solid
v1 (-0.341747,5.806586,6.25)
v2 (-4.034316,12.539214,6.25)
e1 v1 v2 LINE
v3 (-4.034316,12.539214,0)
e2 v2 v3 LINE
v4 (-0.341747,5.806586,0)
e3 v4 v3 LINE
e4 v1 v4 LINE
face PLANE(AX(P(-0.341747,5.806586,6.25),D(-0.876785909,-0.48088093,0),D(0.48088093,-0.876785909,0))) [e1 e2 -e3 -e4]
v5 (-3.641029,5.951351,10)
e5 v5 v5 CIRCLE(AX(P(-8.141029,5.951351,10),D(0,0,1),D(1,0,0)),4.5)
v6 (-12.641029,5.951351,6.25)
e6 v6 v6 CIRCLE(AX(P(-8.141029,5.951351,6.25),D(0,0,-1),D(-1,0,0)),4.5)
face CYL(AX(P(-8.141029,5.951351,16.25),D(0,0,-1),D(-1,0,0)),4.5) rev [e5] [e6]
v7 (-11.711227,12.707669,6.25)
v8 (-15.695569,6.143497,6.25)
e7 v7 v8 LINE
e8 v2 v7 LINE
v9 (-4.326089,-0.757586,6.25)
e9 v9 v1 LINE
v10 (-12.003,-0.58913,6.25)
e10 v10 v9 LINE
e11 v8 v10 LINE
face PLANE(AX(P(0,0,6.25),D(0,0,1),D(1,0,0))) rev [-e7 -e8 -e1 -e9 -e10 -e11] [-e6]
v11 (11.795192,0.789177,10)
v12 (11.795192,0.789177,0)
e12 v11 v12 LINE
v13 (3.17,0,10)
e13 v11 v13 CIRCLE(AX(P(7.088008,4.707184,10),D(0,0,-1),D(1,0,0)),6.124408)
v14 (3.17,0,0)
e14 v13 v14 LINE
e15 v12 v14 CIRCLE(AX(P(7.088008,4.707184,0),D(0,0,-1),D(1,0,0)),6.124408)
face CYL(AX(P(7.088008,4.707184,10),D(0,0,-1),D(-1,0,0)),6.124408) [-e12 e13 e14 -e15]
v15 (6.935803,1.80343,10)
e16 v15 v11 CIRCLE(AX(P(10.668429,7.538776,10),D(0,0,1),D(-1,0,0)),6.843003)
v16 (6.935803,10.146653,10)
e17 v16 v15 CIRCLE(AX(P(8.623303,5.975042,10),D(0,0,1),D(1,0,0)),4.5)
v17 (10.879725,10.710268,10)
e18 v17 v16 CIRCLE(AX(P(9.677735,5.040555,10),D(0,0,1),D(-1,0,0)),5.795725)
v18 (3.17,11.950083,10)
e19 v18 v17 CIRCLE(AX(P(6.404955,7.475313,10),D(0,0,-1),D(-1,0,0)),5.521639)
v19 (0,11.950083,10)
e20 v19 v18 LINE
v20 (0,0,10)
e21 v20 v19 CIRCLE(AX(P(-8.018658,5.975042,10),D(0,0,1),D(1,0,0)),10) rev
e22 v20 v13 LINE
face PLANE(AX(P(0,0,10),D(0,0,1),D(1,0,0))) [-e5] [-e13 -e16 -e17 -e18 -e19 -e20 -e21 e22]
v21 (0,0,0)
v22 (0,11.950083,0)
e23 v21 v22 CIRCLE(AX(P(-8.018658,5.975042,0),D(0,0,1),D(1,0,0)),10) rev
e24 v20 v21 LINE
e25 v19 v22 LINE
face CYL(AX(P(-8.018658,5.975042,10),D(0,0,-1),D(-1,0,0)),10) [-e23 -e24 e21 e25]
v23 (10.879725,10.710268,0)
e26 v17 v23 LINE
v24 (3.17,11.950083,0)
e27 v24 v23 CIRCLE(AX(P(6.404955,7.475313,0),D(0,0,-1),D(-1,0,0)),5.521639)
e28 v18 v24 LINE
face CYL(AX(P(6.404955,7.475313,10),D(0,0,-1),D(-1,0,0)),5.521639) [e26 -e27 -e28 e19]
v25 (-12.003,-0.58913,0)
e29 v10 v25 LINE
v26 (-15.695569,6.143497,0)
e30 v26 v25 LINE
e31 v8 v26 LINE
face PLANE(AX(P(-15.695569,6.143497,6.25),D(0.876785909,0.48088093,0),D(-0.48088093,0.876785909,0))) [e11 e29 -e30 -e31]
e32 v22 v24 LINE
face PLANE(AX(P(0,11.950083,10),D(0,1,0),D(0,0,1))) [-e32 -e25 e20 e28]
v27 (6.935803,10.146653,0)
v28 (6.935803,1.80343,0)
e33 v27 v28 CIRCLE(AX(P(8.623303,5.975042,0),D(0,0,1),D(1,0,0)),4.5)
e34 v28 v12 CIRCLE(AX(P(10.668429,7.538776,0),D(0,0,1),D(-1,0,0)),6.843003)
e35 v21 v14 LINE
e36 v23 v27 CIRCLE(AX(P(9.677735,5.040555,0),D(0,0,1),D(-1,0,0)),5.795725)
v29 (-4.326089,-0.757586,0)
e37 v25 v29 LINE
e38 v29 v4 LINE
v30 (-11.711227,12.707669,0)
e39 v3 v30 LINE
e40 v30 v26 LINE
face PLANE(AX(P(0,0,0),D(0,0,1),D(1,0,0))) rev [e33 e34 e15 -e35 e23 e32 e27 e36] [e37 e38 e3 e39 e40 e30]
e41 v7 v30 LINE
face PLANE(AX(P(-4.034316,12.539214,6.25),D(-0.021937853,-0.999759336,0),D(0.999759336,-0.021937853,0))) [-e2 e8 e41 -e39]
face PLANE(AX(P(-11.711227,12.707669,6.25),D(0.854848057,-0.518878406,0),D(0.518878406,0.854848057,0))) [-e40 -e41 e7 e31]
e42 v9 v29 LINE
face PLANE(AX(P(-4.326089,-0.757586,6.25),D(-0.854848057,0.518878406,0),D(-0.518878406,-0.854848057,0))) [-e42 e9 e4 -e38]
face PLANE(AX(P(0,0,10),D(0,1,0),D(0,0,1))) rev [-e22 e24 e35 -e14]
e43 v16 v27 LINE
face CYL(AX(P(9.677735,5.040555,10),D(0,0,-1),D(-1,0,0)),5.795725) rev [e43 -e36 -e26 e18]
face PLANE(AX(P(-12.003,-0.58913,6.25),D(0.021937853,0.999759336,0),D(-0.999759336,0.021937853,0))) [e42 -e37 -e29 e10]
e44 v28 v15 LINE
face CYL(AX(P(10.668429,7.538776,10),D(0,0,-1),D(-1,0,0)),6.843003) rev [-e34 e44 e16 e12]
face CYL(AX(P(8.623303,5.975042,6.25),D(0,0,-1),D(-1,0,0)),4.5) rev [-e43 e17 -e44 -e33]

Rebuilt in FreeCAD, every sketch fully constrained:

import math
import FreeCAD as App
import Part
import Sketcher

V = App.Vector

doc = App.newDocument("Part")
params = doc.addObject("Spreadsheet::Sheet", "Params")
for row, (alias, value) in enumerate([
    ("sketch1_radius", "6 mm"),
    ("sketch1_radius2", "10 mm"),
    ("sketch1_width", "3.17 mm"),
    ("pad1_length", "10 mm"),
    ("sketch2_diameter", "9 mm"),
    ("pocket1_length", "6.25 mm"),
    ("sketch3_diameter", "9 mm"),
    ("pocket2_length", "10 mm"),
    ("sketch4_radius", "6 mm"),
    ("sketch4_radius2", "4.5 mm"),
    ("pocket3_length", "10 mm"),
    ("sketch5_radius", "6 mm"),
    ("pad2_length", "10 mm"),
    ("sketch6_radius", "6 mm"),
    ("pad3_length", "10 mm"),
], start=1):
    params.set(f"A{row}", alias)
    params.set(f"B{row}", "=" + value)
    params.setAlias(f"B{row}", alias)

body = doc.addObject("PartDesign::Body", "Body")

# Sketch on XY plane
sketch1 = body.newObject("Sketcher::SketchObject", "Sketch")
sketch1.AttachmentSupport = (doc.getObject("XY_Plane"), [""])
sketch1.MapMode = "FlatFace"
sketch1.addGeometry(Part.LineSegment(V(0, 0, 0), V(3.2, 0, 0)), False)
sketch1.addGeometry(Part.ArcOfCircle(Part.Circle(V(2.6, 6, 0), V(0, 0, 1), 6), math.radians(-85), math.radians(85)), False)
sketch1.addGeometry(Part.LineSegment(V(3.2, 12, 0), V(0, 12, 0)), False)
sketch1.addGeometry(Part.ArcOfCircle(Part.Circle(V(-8, 6, 0), V(0, 0, 1), 10), math.radians(37), math.radians(323)), False)
sketch1.addConstraint(Sketcher.Constraint("Coincident", 0, 2, 1, 1))
sketch1.addConstraint(Sketcher.Constraint("Coincident", 1, 2, 2, 1))
sketch1.addConstraint(Sketcher.Constraint("Coincident", 2, 2, 3, 1))
sketch1.addConstraint(Sketcher.Constraint("Coincident", 3, 2, 0, 1))
sketch1.addConstraint(Sketcher.Constraint("Horizontal", 0))
sketch1.addConstraint(Sketcher.Constraint("Horizontal", 2))
sketch1.addConstraint(Sketcher.Constraint("Coincident", 3, 2, -1, 1))
sketch1.addConstraint(Sketcher.Constraint("PointOnObject", 2, 2, -2))
sketch1.addConstraint(Sketcher.Constraint("Horizontal", 1, 3, 3, 3))
sketch1.addConstraint(Sketcher.Constraint("Radius", 1, 6.0))
sketch1.addConstraint(Sketcher.Constraint("Radius", 3, 10.0))
sketch1.addConstraint(Sketcher.Constraint("DistanceX", 0, 1, 0, 2, 3.17))
sketch1.addConstraint(Sketcher.Constraint("DistanceY", -1, 1, 1, 3, 5.975042))
sketch1.setExpression("Constraints[9]", "Params.sketch1_radius")
sketch1.setExpression("Constraints[10]", "Params.sketch1_radius2")
sketch1.setExpression("Constraints[11]", "Params.sketch1_width")
pad1 = body.newObject("PartDesign::Pad", "Pad")
pad1.Profile = sketch1
pad1.setExpression("Length", "Params.pad1_length")

# Sketch on XY plane
sketch2 = body.newObject("Sketcher::SketchObject", "Sketch001")
sketch2.AttachmentSupport = (doc.getObject("XY_Plane"), [""])
sketch2.MapMode = "FlatFace"
sketch2.addGeometry(Part.Circle(V(8.6, 6, 0), V(0, 0, 1), 4.5), False)
sketch2.addGeometry(Part.LineSegment(V(-4.3, -0.8, 0), V(-0.3, 5.8, 0)), False)
sketch2.addGeometry(Part.LineSegment(V(-0.3, 5.8, 0), V(-4, 12.5, 0)), False)
sketch2.addGeometry(Part.LineSegment(V(-4, 12.5, 0), V(-11.7, 12.7, 0)), False)
sketch2.addGeometry(Part.LineSegment(V(-11.7, 12.7, 0), V(-15.7, 6.1, 0)), False)
sketch2.addGeometry(Part.LineSegment(V(-15.7, 6.1, 0), V(-12, -0.6, 0)), False)
sketch2.addGeometry(Part.LineSegment(V(-12, -0.6, 0), V(-4.3, -0.8, 0)), False)
sketch2.addConstraint(Sketcher.Constraint("Coincident", 1, 2, 2, 1))
sketch2.addConstraint(Sketcher.Constraint("Coincident", 2, 2, 3, 1))
sketch2.addConstraint(Sketcher.Constraint("Coincident", 3, 2, 4, 1))
sketch2.addConstraint(Sketcher.Constraint("Coincident", 4, 2, 5, 1))
sketch2.addConstraint(Sketcher.Constraint("Coincident", 5, 2, 6, 1))
sketch2.addConstraint(Sketcher.Constraint("Coincident", 6, 2, 1, 1))
sketch2.addConstraint(Sketcher.Constraint("Parallel", 1, 4))
sketch2.addConstraint(Sketcher.Constraint("Parallel", 2, 5))
sketch2.addConstraint(Sketcher.Constraint("Parallel", 3, 6))
sketch2.addConstraint(Sketcher.Constraint("Equal", 1, 2))
sketch2.addConstraint(Sketcher.Constraint("Equal", 2, 3))
sketch2.addConstraint(Sketcher.Constraint("Equal", 3, 4))
sketch2.addConstraint(Sketcher.Constraint("Diameter", 0, 9.0))
sketch2.addConstraint(Sketcher.Constraint("DistanceX", 5, 2, -1, 1, 12.003))
sketch2.addConstraint(Sketcher.Constraint("DistanceY", 5, 2, 3, 2, 13.296799))
sketch2.addConstraint(Sketcher.Constraint("Distance", 1, 7.678759))
sketch2.addConstraint(Sketcher.Constraint("DistanceY", -1, 1, 0, 3, 5.975042))
sketch2.addConstraint(Sketcher.Constraint("DistanceY", -1, 1, 3, 2, 12.707669))
sketch2.addConstraint(Sketcher.Constraint("DistanceX", 4, 2, -1, 1, 15.695569))
sketch2.addConstraint(Sketcher.Constraint("DistanceX", 6, 2, -1, 1, 4.326089))
sketch2.addConstraint(Sketcher.Constraint("DistanceX", 1, 2, 0, 3, 8.965051))
sketch2.setExpression("Constraints[12]", "Params.sketch2_diameter")
pocket1 = body.newObject("PartDesign::Pocket", "Pocket")
pocket1.Profile = sketch2
pocket1.setExpression("Length", "Params.pocket1_length")
pocket1.Reversed = True

# Sketch on XY plane
sketch3 = body.newObject("Sketcher::SketchObject", "Sketch002")
sketch3.AttachmentSupport = (doc.getObject("XY_Plane"), [""])
sketch3.MapMode = "FlatFace"
sketch3.AttachmentOffset = App.Placement(V(0, 0, 6.25), App.Rotation())
sketch3.addGeometry(Part.Circle(V(-8.1, 6, 0), V(0, 0, 1), 4.5), False)
sketch3.addConstraint(Sketcher.Constraint("Diameter", 0, 9.0))
sketch3.addConstraint(Sketcher.Constraint("DistanceX", 0, 3, -1, 1, 8.141029))
sketch3.addConstraint(Sketcher.Constraint("DistanceY", -1, 1, 0, 3, 5.951351))
sketch3.setExpression("Constraints[0]", "Params.sketch3_diameter")
pocket2 = body.newObject("PartDesign::Pocket", "Pocket001")
pocket2.Profile = sketch3
pocket2.setExpression("Length", "Params.pocket2_length")
pocket2.Reversed = True

# Sketch on XY plane
sketch4 = body.newObject("Sketcher::SketchObject", "Sketch003")
sketch4.AttachmentSupport = (doc.getObject("XY_Plane"), [""])
sketch4.MapMode = "FlatFace"
sketch4.AttachmentOffset = App.Placement(V(0, 0, 6.25), App.Rotation())
sketch4.addGeometry(Part.ArcOfCircle(Part.Circle(V(2.6, 6, 0), V(0, 0, 1), 6), math.radians(-44), math.radians(44)), False)
sketch4.addGeometry(Part.ArcOfCircle(Part.Circle(V(8.6, 6, 0), V(0, 0, 1), 4.5), math.radians(112), math.radians(248)), False)
sketch4.addConstraint(Sketcher.Constraint("Coincident", 0, 1, 1, 2))
sketch4.addConstraint(Sketcher.Constraint("Coincident", 1, 1, 0, 2))
sketch4.addConstraint(Sketcher.Constraint("Horizontal", 0, 3, 1, 3))
sketch4.addConstraint(Sketcher.Constraint("Radius", 0, 6.0))
sketch4.addConstraint(Sketcher.Constraint("Radius", 1, 4.5))
sketch4.addConstraint(Sketcher.Constraint("DistanceX", 0, 3, 1, 3, 6.0))
sketch4.addConstraint(Sketcher.Constraint("DistanceY", -1, 1, 0, 3, 5.975042))
sketch4.addConstraint(Sketcher.Constraint("DistanceX", -1, 1, 0, 3, 2.623303))
sketch4.setExpression("Constraints[3]", "Params.sketch4_radius")
sketch4.setExpression("Constraints[4]", "Params.sketch4_radius2")
pocket3 = body.newObject("PartDesign::Pocket", "Pocket002")
pocket3.Profile = sketch4
pocket3.setExpression("Length", "Params.pocket3_length")
pocket3.Reversed = True

# Sketch on XY plane
sketch5 = body.newObject("Sketcher::SketchObject", "Sketch004")
sketch5.AttachmentSupport = (doc.getObject("XY_Plane"), [""])
sketch5.MapMode = "FlatFace"
sketch5.addGeometry(Part.ArcOfCircle(Part.Circle(V(7.1, 4.7, 0), V(0, 0, 1), 6.1), math.radians(-130), math.radians(-40)), False)
sketch5.addGeometry(Part.ArcOfCircle(Part.Circle(V(2.6, 6, 0), V(0, 0, 1), 6), math.radians(-85), math.radians(-44)), False)
sketch5.addGeometry(Part.ArcOfCircle(Part.Circle(V(10.7, 7.5, 0), V(0, 0, 1), 6.8), math.radians(-123), math.radians(-81)), False)
sketch5.addConstraint(Sketcher.Constraint("Coincident", 0, 1, 1, 1))
sketch5.addConstraint(Sketcher.Constraint("Coincident", 1, 2, 2, 1))
sketch5.addConstraint(Sketcher.Constraint("Coincident", 2, 2, 0, 2))
sketch5.addConstraint(Sketcher.Constraint("PointOnObject", 0, 1, -1))
sketch5.addConstraint(Sketcher.Constraint("Radius", 1, 6.0))
sketch5.addConstraint(Sketcher.Constraint("DistanceX", -1, 1, 0, 1, 3.17))
sketch5.addConstraint(Sketcher.Constraint("Radius", 0, 6.124408))
sketch5.addConstraint(Sketcher.Constraint("Radius", 2, 6.843003))
sketch5.addConstraint(Sketcher.Constraint("DistanceX", 1, 3, 1, 2, 4.3125))
sketch5.addConstraint(Sketcher.Constraint("DistanceY", 2, 2, 2, 3, 6.749599))
sketch5.addConstraint(Sketcher.Constraint("DistanceY", -1, 1, 1, 3, 5.975042))
sketch5.addConstraint(Sketcher.Constraint("DistanceX", -1, 1, 2, 3, 10.668429))
sketch5.setExpression("Constraints[4]", "Params.sketch5_radius")
pad2 = body.newObject("PartDesign::Pad", "Pad001")
pad2.Profile = sketch5
pad2.setExpression("Length", "Params.pad2_length")

# Sketch on XY plane
sketch6 = body.newObject("Sketcher::SketchObject", "Sketch005")
sketch6.AttachmentSupport = (doc.getObject("XY_Plane"), [""])
sketch6.MapMode = "FlatFace"
sketch6.addGeometry(Part.ArcOfCircle(Part.Circle(V(6.4, 7.5, 0), V(0, 0, 1), 5.5), math.radians(36), math.radians(126)), False)
sketch6.addGeometry(Part.ArcOfCircle(Part.Circle(V(9.7, 5, 0), V(0, 0, 1), 5.8), math.radians(78), math.radians(118)), False)
sketch6.addGeometry(Part.ArcOfCircle(Part.Circle(V(2.6, 6, 0), V(0, 0, 1), 6), math.radians(44), math.radians(85)), False)
sketch6.addConstraint(Sketcher.Constraint("Coincident", 0, 1, 1, 1))
sketch6.addConstraint(Sketcher.Constraint("Coincident", 1, 2, 2, 1))
sketch6.addConstraint(Sketcher.Constraint("Coincident", 2, 2, 0, 2))
sketch6.addConstraint(Sketcher.Constraint("Radius", 2, 6.0))
sketch6.addConstraint(Sketcher.Constraint("DistanceX", -1, 1, 2, 2, 3.17))
sketch6.addConstraint(Sketcher.Constraint("Radius", 0, 5.521639))
sketch6.addConstraint(Sketcher.Constraint("Radius", 1, 5.795725))
sketch6.addConstraint(Sketcher.Constraint("DistanceX", 2, 3, 1, 2, 4.3125))
sketch6.addConstraint(Sketcher.Constraint("DistanceY", -1, 1, 2, 3, 5.975042))
sketch6.addConstraint(Sketcher.Constraint("DistanceY", -1, 1, 0, 1, 10.710268))
sketch6.addConstraint(Sketcher.Constraint("DistanceX", 0, 3, 1, 3, 3.27278))
sketch6.addConstraint(Sketcher.Constraint("DistanceX", 2, 3, 0, 3, 3.781652))
sketch6.setExpression("Constraints[3]", "Params.sketch6_radius")
pad3 = body.newObject("PartDesign::Pad", "Pad002")
pad3.Profile = sketch6
pad3.setExpression("Length", "Params.pad3_length")

doc.recompute()
